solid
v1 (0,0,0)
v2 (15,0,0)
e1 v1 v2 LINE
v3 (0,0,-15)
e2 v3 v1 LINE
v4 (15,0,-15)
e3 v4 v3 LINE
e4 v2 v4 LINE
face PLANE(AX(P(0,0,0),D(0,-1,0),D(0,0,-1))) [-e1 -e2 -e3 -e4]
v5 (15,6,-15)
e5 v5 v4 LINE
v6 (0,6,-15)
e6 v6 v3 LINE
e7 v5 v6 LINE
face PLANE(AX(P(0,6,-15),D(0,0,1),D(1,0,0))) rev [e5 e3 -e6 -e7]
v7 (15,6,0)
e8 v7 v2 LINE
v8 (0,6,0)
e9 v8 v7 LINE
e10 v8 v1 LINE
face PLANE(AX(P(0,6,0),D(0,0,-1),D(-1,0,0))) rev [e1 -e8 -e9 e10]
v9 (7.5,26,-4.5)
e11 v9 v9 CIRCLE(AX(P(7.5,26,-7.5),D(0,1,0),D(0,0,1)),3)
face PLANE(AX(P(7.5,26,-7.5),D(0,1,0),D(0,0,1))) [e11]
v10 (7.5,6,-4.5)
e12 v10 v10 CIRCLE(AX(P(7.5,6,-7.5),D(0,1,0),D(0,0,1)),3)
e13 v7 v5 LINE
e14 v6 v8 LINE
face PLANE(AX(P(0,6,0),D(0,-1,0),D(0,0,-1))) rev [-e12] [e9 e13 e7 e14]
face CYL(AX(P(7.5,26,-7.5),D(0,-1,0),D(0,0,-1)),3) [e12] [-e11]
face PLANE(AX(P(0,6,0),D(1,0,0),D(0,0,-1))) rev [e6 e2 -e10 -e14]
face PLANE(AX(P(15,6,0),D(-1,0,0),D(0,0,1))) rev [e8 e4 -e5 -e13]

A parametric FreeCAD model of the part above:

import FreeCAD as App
import Part
import Sketcher
from FreeCAD import Vector


def add_polygon(sketch, points):
    """Adds a closed chain of lines whose ends are joined by coincident constraints."""
    first, n = sketch.GeometryCount, len(points)
    for a, b in zip(points, points[1:] + points[:1]):
        sketch.addGeometry(Part.LineSegment(App.Vector(*a, 0), App.Vector(*b, 0)), False)
    for i in range(n):
        sketch.addConstraint(Sketcher.Constraint("Coincident", first + i, 2, first + (i + 1) % n, 1))

doc = App.newDocument("Part")
body = doc.addObject("PartDesign::Body", "Body")

# Sketch on XZ plane
sketch1 = doc.addObject("Sketcher::SketchObject", "Sketch")
body.addObject(sketch1)
sketch1.AttachmentSupport = (doc.XZ_Plane, [""])
sketch1.MapMode = "FlatFace"
add_polygon(sketch1, [(0, -15), (0, 0), (15, 0), (15, -15)])  # lines 0-3
sketch1.addConstraint([
    Sketcher.Constraint("Vertical", 0),
    Sketcher.Constraint("Horizontal", 1),
    Sketcher.Constraint("Vertical", 2),
    Sketcher.Constraint("Horizontal", 3),
    Sketcher.Constraint("Coincident", 0, 2, -1, 1),
    Sketcher.Constraint("Equal", 3, 0),
    Sketcher.Constraint("DistanceX", 1, 1, 1, 2, 15.0),
])
pad1 = doc.addObject("PartDesign::Pad", "Pad")
body.addObject(pad1)
pad1.Profile = sketch1
pad1.Length = 6
pad1.Reversed = True

# Sketch on XZ plane
sketch2 = doc.addObject("Sketcher::SketchObject", "Sketch001")
body.addObject(sketch2)
sketch2.AttachmentSupport = (doc.XZ_Plane, [""])
sketch2.MapMode = "FlatFace"
sketch2.AttachmentOffset = App.Placement(Vector(0, 0, -6), App.Rotation())
sketch2.addGeometry(Part.Circle(Vector(7.5, -7.5, 0), Vector(0, 0, 1), 3), False)
sketch2.addConstraint([
    Sketcher.Constraint("Diameter", 0, 6.0),
    Sketcher.Constraint("DistanceX", -1, 1, 0, 3, 7.5),
    Sketcher.Constraint("DistanceY", 0, 3, -1, 1, 7.5),
])
pad2 = doc.addObject("PartDesign::Pad", "Pad001")
body.addObject(pad2)
pad2.Profile = sketch2
pad2.Length = 20
pad2.Reversed = True

doc.recompute()
